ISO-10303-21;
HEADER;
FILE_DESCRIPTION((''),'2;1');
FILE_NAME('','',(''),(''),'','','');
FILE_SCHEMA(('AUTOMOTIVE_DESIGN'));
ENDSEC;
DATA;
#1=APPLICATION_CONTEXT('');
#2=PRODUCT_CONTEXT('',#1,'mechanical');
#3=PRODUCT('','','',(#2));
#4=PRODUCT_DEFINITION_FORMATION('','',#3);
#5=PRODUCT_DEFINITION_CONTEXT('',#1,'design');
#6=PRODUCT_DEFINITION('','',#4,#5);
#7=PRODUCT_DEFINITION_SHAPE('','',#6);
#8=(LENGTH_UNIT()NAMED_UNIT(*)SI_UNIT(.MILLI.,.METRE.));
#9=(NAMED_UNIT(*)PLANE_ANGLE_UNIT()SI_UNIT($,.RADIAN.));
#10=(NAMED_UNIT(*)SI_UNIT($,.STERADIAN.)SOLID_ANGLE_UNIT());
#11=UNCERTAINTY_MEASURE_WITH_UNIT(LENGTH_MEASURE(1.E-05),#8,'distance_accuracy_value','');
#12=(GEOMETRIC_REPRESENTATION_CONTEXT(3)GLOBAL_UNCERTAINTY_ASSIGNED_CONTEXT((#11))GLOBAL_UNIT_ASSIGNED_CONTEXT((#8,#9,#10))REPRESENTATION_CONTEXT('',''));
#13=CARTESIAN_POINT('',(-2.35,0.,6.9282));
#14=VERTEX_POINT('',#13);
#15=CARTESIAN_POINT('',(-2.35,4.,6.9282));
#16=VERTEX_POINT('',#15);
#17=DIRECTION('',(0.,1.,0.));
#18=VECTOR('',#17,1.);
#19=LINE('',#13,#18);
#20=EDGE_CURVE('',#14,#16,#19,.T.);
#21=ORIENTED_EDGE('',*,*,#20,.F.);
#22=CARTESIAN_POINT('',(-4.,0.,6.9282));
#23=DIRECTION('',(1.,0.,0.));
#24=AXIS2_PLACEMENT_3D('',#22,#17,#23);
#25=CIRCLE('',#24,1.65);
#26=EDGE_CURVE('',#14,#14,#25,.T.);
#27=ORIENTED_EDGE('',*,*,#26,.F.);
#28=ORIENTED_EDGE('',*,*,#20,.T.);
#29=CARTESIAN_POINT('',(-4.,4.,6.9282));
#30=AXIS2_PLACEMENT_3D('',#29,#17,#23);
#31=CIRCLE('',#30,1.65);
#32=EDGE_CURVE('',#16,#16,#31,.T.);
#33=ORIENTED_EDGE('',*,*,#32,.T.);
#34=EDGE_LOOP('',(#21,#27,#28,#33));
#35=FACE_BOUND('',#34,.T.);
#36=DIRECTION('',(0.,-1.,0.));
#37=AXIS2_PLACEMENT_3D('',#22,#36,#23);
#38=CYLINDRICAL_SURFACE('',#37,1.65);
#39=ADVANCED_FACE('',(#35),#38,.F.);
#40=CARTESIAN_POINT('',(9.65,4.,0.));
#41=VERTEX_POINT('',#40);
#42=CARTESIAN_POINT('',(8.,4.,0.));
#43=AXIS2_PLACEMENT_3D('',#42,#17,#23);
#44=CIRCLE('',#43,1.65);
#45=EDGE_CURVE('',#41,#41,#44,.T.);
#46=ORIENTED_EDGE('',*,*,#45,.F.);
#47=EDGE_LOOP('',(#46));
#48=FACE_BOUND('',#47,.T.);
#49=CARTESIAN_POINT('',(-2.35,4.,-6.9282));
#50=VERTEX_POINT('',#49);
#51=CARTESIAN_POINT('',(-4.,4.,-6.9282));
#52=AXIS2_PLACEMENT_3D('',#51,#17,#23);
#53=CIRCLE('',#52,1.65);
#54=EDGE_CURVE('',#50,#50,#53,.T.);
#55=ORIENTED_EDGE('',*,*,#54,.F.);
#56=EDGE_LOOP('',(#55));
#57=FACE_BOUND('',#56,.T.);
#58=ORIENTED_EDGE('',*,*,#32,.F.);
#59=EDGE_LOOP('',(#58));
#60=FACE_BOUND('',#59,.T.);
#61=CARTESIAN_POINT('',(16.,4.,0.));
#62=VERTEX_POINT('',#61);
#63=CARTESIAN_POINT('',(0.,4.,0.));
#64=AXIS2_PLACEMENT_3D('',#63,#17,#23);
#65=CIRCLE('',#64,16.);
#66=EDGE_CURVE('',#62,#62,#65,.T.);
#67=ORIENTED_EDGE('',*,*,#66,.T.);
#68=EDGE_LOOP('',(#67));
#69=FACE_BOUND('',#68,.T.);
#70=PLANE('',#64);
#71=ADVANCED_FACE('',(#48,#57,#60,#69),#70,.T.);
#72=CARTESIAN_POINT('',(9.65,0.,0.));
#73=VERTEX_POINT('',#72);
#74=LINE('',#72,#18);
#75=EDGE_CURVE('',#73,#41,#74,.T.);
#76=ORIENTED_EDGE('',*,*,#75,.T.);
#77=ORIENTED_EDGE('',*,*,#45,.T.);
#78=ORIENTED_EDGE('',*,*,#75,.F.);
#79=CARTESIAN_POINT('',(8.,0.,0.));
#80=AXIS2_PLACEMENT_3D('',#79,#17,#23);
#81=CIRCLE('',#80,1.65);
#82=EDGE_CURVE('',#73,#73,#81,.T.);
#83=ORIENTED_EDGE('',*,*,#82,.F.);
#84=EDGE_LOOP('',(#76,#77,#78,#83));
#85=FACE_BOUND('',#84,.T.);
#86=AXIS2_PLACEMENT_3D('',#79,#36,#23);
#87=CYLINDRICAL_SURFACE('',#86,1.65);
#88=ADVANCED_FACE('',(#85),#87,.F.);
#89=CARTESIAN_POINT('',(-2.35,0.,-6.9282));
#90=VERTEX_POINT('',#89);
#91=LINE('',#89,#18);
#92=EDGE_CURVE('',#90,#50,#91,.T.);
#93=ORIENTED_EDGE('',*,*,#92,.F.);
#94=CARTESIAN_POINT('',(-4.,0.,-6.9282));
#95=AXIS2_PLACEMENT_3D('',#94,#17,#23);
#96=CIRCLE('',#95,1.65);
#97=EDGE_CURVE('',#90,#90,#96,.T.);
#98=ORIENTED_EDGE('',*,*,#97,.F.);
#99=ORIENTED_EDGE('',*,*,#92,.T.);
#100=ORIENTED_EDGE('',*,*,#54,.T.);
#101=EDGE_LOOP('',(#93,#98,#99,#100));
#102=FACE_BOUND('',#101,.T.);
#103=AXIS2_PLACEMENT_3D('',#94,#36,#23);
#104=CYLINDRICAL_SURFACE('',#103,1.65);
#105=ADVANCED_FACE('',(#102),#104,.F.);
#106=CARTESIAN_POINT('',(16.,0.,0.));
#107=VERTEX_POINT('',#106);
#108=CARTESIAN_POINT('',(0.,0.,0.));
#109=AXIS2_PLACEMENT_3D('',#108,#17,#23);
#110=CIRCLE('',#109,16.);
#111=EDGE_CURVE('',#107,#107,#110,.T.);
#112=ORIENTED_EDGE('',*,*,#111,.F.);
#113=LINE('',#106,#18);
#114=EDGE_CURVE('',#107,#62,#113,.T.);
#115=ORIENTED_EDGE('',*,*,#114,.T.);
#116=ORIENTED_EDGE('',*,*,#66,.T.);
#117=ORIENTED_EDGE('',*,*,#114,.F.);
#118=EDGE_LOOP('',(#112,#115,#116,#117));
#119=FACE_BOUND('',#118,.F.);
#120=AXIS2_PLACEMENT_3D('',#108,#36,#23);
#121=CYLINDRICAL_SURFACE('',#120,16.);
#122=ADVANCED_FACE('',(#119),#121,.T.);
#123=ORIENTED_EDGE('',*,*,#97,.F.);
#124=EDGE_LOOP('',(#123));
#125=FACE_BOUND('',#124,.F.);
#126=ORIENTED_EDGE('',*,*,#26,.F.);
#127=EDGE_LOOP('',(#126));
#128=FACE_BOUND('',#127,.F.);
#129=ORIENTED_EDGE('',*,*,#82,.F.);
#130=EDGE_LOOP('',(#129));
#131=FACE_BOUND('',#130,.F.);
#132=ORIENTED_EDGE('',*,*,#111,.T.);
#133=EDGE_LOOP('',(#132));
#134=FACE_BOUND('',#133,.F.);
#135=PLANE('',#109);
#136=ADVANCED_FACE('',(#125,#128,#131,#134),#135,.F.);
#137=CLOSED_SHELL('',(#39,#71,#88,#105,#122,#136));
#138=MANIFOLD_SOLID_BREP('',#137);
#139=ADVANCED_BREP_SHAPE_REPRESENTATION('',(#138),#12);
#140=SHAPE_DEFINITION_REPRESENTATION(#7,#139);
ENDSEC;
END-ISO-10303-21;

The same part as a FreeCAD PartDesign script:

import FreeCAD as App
import Part
import Sketcher
Q = App.Units.Quantity

doc = App.newDocument("Part")
params = doc.addObject("Spreadsheet::Sheet", "Params")
for row, (alias, value) in enumerate([
    ("sketch1_diameter", "32 mm"),
    ("sketch1_diameter2", "3.3 mm"),
    ("pad1_length", "4 mm"),
], start=1):
    params.set(f"A{row}", alias)
    params.set(f"B{row}", "=" + value)
    params.setAlias(f"B{row}", alias)

body = doc.addObject("PartDesign::Body", "Body")

# Sketch on XZ plane
sketch1 = body.newObject("Sketcher::SketchObject", "Sketch")
sketch1.AttachmentSupport = (doc.getObject("XZ_Plane"), [""])
sketch1.MapMode = "FlatFace"
sketch1.addGeometry(Part.Circle(App.Vector(0, 0, 0), App.Vector(0, 0, 1), 16), False)
sketch1.addGeometry(Part.Circle(App.Vector(-4, 6.9, 0), App.Vector(0, 0, 1), 1.6), False)
sketch1.addGeometry(Part.Circle(App.Vector(-4, -6.9, 0), App.Vector(0, 0, 1), 1.6), False)
sketch1.addGeometry(Part.Circle(App.Vector(8, 0, 0), App.Vector(0, 0, 1), 1.6), False)
sketch1.addConstraint(Sketcher.Constraint("Coincident", 0, 3, -1, 1))
sketch1.addConstraint(Sketcher.Constraint("Equal", 1, 2))
sketch1.addConstraint(Sketcher.Constraint("Equal", 2, 3))
sketch1.addConstraint(Sketcher.Constraint("Symmetric", 1, 3, 2, 3, -1))
sketch1.addConstraint(Sketcher.Constraint("PointOnObject", 3, 3, -1))
sketch1.addConstraint(Sketcher.Constraint("Diameter", 0, Q("32 mm")))
sketch1.addConstraint(Sketcher.Constraint("Diameter", 1, Q("3.3 mm")))
sketch1.addConstraint(Sketcher.Constraint("DistanceX", -1, 1, 3, 3, Q("8 mm")))
sketch1.addConstraint(Sketcher.Constraint("DistanceX", 1, 3, -1, 1, Q("4 mm")))
sketch1.addConstraint(Sketcher.Constraint("DistanceY", -1, 1, 1, 3, Q("6.9282 mm")))
sketch1.setExpression("Constraints[5]", "Params.sketch1_diameter")
sketch1.setExpression("Constraints[6]", "Params.sketch1_diameter2")
pad1 = body.newObject("PartDesign::Pad", "Pad")
pad1.Profile = sketch1
pad1.setExpression("Length", "Params.pad1_length")
pad1.Reversed = True

doc.recompute()
